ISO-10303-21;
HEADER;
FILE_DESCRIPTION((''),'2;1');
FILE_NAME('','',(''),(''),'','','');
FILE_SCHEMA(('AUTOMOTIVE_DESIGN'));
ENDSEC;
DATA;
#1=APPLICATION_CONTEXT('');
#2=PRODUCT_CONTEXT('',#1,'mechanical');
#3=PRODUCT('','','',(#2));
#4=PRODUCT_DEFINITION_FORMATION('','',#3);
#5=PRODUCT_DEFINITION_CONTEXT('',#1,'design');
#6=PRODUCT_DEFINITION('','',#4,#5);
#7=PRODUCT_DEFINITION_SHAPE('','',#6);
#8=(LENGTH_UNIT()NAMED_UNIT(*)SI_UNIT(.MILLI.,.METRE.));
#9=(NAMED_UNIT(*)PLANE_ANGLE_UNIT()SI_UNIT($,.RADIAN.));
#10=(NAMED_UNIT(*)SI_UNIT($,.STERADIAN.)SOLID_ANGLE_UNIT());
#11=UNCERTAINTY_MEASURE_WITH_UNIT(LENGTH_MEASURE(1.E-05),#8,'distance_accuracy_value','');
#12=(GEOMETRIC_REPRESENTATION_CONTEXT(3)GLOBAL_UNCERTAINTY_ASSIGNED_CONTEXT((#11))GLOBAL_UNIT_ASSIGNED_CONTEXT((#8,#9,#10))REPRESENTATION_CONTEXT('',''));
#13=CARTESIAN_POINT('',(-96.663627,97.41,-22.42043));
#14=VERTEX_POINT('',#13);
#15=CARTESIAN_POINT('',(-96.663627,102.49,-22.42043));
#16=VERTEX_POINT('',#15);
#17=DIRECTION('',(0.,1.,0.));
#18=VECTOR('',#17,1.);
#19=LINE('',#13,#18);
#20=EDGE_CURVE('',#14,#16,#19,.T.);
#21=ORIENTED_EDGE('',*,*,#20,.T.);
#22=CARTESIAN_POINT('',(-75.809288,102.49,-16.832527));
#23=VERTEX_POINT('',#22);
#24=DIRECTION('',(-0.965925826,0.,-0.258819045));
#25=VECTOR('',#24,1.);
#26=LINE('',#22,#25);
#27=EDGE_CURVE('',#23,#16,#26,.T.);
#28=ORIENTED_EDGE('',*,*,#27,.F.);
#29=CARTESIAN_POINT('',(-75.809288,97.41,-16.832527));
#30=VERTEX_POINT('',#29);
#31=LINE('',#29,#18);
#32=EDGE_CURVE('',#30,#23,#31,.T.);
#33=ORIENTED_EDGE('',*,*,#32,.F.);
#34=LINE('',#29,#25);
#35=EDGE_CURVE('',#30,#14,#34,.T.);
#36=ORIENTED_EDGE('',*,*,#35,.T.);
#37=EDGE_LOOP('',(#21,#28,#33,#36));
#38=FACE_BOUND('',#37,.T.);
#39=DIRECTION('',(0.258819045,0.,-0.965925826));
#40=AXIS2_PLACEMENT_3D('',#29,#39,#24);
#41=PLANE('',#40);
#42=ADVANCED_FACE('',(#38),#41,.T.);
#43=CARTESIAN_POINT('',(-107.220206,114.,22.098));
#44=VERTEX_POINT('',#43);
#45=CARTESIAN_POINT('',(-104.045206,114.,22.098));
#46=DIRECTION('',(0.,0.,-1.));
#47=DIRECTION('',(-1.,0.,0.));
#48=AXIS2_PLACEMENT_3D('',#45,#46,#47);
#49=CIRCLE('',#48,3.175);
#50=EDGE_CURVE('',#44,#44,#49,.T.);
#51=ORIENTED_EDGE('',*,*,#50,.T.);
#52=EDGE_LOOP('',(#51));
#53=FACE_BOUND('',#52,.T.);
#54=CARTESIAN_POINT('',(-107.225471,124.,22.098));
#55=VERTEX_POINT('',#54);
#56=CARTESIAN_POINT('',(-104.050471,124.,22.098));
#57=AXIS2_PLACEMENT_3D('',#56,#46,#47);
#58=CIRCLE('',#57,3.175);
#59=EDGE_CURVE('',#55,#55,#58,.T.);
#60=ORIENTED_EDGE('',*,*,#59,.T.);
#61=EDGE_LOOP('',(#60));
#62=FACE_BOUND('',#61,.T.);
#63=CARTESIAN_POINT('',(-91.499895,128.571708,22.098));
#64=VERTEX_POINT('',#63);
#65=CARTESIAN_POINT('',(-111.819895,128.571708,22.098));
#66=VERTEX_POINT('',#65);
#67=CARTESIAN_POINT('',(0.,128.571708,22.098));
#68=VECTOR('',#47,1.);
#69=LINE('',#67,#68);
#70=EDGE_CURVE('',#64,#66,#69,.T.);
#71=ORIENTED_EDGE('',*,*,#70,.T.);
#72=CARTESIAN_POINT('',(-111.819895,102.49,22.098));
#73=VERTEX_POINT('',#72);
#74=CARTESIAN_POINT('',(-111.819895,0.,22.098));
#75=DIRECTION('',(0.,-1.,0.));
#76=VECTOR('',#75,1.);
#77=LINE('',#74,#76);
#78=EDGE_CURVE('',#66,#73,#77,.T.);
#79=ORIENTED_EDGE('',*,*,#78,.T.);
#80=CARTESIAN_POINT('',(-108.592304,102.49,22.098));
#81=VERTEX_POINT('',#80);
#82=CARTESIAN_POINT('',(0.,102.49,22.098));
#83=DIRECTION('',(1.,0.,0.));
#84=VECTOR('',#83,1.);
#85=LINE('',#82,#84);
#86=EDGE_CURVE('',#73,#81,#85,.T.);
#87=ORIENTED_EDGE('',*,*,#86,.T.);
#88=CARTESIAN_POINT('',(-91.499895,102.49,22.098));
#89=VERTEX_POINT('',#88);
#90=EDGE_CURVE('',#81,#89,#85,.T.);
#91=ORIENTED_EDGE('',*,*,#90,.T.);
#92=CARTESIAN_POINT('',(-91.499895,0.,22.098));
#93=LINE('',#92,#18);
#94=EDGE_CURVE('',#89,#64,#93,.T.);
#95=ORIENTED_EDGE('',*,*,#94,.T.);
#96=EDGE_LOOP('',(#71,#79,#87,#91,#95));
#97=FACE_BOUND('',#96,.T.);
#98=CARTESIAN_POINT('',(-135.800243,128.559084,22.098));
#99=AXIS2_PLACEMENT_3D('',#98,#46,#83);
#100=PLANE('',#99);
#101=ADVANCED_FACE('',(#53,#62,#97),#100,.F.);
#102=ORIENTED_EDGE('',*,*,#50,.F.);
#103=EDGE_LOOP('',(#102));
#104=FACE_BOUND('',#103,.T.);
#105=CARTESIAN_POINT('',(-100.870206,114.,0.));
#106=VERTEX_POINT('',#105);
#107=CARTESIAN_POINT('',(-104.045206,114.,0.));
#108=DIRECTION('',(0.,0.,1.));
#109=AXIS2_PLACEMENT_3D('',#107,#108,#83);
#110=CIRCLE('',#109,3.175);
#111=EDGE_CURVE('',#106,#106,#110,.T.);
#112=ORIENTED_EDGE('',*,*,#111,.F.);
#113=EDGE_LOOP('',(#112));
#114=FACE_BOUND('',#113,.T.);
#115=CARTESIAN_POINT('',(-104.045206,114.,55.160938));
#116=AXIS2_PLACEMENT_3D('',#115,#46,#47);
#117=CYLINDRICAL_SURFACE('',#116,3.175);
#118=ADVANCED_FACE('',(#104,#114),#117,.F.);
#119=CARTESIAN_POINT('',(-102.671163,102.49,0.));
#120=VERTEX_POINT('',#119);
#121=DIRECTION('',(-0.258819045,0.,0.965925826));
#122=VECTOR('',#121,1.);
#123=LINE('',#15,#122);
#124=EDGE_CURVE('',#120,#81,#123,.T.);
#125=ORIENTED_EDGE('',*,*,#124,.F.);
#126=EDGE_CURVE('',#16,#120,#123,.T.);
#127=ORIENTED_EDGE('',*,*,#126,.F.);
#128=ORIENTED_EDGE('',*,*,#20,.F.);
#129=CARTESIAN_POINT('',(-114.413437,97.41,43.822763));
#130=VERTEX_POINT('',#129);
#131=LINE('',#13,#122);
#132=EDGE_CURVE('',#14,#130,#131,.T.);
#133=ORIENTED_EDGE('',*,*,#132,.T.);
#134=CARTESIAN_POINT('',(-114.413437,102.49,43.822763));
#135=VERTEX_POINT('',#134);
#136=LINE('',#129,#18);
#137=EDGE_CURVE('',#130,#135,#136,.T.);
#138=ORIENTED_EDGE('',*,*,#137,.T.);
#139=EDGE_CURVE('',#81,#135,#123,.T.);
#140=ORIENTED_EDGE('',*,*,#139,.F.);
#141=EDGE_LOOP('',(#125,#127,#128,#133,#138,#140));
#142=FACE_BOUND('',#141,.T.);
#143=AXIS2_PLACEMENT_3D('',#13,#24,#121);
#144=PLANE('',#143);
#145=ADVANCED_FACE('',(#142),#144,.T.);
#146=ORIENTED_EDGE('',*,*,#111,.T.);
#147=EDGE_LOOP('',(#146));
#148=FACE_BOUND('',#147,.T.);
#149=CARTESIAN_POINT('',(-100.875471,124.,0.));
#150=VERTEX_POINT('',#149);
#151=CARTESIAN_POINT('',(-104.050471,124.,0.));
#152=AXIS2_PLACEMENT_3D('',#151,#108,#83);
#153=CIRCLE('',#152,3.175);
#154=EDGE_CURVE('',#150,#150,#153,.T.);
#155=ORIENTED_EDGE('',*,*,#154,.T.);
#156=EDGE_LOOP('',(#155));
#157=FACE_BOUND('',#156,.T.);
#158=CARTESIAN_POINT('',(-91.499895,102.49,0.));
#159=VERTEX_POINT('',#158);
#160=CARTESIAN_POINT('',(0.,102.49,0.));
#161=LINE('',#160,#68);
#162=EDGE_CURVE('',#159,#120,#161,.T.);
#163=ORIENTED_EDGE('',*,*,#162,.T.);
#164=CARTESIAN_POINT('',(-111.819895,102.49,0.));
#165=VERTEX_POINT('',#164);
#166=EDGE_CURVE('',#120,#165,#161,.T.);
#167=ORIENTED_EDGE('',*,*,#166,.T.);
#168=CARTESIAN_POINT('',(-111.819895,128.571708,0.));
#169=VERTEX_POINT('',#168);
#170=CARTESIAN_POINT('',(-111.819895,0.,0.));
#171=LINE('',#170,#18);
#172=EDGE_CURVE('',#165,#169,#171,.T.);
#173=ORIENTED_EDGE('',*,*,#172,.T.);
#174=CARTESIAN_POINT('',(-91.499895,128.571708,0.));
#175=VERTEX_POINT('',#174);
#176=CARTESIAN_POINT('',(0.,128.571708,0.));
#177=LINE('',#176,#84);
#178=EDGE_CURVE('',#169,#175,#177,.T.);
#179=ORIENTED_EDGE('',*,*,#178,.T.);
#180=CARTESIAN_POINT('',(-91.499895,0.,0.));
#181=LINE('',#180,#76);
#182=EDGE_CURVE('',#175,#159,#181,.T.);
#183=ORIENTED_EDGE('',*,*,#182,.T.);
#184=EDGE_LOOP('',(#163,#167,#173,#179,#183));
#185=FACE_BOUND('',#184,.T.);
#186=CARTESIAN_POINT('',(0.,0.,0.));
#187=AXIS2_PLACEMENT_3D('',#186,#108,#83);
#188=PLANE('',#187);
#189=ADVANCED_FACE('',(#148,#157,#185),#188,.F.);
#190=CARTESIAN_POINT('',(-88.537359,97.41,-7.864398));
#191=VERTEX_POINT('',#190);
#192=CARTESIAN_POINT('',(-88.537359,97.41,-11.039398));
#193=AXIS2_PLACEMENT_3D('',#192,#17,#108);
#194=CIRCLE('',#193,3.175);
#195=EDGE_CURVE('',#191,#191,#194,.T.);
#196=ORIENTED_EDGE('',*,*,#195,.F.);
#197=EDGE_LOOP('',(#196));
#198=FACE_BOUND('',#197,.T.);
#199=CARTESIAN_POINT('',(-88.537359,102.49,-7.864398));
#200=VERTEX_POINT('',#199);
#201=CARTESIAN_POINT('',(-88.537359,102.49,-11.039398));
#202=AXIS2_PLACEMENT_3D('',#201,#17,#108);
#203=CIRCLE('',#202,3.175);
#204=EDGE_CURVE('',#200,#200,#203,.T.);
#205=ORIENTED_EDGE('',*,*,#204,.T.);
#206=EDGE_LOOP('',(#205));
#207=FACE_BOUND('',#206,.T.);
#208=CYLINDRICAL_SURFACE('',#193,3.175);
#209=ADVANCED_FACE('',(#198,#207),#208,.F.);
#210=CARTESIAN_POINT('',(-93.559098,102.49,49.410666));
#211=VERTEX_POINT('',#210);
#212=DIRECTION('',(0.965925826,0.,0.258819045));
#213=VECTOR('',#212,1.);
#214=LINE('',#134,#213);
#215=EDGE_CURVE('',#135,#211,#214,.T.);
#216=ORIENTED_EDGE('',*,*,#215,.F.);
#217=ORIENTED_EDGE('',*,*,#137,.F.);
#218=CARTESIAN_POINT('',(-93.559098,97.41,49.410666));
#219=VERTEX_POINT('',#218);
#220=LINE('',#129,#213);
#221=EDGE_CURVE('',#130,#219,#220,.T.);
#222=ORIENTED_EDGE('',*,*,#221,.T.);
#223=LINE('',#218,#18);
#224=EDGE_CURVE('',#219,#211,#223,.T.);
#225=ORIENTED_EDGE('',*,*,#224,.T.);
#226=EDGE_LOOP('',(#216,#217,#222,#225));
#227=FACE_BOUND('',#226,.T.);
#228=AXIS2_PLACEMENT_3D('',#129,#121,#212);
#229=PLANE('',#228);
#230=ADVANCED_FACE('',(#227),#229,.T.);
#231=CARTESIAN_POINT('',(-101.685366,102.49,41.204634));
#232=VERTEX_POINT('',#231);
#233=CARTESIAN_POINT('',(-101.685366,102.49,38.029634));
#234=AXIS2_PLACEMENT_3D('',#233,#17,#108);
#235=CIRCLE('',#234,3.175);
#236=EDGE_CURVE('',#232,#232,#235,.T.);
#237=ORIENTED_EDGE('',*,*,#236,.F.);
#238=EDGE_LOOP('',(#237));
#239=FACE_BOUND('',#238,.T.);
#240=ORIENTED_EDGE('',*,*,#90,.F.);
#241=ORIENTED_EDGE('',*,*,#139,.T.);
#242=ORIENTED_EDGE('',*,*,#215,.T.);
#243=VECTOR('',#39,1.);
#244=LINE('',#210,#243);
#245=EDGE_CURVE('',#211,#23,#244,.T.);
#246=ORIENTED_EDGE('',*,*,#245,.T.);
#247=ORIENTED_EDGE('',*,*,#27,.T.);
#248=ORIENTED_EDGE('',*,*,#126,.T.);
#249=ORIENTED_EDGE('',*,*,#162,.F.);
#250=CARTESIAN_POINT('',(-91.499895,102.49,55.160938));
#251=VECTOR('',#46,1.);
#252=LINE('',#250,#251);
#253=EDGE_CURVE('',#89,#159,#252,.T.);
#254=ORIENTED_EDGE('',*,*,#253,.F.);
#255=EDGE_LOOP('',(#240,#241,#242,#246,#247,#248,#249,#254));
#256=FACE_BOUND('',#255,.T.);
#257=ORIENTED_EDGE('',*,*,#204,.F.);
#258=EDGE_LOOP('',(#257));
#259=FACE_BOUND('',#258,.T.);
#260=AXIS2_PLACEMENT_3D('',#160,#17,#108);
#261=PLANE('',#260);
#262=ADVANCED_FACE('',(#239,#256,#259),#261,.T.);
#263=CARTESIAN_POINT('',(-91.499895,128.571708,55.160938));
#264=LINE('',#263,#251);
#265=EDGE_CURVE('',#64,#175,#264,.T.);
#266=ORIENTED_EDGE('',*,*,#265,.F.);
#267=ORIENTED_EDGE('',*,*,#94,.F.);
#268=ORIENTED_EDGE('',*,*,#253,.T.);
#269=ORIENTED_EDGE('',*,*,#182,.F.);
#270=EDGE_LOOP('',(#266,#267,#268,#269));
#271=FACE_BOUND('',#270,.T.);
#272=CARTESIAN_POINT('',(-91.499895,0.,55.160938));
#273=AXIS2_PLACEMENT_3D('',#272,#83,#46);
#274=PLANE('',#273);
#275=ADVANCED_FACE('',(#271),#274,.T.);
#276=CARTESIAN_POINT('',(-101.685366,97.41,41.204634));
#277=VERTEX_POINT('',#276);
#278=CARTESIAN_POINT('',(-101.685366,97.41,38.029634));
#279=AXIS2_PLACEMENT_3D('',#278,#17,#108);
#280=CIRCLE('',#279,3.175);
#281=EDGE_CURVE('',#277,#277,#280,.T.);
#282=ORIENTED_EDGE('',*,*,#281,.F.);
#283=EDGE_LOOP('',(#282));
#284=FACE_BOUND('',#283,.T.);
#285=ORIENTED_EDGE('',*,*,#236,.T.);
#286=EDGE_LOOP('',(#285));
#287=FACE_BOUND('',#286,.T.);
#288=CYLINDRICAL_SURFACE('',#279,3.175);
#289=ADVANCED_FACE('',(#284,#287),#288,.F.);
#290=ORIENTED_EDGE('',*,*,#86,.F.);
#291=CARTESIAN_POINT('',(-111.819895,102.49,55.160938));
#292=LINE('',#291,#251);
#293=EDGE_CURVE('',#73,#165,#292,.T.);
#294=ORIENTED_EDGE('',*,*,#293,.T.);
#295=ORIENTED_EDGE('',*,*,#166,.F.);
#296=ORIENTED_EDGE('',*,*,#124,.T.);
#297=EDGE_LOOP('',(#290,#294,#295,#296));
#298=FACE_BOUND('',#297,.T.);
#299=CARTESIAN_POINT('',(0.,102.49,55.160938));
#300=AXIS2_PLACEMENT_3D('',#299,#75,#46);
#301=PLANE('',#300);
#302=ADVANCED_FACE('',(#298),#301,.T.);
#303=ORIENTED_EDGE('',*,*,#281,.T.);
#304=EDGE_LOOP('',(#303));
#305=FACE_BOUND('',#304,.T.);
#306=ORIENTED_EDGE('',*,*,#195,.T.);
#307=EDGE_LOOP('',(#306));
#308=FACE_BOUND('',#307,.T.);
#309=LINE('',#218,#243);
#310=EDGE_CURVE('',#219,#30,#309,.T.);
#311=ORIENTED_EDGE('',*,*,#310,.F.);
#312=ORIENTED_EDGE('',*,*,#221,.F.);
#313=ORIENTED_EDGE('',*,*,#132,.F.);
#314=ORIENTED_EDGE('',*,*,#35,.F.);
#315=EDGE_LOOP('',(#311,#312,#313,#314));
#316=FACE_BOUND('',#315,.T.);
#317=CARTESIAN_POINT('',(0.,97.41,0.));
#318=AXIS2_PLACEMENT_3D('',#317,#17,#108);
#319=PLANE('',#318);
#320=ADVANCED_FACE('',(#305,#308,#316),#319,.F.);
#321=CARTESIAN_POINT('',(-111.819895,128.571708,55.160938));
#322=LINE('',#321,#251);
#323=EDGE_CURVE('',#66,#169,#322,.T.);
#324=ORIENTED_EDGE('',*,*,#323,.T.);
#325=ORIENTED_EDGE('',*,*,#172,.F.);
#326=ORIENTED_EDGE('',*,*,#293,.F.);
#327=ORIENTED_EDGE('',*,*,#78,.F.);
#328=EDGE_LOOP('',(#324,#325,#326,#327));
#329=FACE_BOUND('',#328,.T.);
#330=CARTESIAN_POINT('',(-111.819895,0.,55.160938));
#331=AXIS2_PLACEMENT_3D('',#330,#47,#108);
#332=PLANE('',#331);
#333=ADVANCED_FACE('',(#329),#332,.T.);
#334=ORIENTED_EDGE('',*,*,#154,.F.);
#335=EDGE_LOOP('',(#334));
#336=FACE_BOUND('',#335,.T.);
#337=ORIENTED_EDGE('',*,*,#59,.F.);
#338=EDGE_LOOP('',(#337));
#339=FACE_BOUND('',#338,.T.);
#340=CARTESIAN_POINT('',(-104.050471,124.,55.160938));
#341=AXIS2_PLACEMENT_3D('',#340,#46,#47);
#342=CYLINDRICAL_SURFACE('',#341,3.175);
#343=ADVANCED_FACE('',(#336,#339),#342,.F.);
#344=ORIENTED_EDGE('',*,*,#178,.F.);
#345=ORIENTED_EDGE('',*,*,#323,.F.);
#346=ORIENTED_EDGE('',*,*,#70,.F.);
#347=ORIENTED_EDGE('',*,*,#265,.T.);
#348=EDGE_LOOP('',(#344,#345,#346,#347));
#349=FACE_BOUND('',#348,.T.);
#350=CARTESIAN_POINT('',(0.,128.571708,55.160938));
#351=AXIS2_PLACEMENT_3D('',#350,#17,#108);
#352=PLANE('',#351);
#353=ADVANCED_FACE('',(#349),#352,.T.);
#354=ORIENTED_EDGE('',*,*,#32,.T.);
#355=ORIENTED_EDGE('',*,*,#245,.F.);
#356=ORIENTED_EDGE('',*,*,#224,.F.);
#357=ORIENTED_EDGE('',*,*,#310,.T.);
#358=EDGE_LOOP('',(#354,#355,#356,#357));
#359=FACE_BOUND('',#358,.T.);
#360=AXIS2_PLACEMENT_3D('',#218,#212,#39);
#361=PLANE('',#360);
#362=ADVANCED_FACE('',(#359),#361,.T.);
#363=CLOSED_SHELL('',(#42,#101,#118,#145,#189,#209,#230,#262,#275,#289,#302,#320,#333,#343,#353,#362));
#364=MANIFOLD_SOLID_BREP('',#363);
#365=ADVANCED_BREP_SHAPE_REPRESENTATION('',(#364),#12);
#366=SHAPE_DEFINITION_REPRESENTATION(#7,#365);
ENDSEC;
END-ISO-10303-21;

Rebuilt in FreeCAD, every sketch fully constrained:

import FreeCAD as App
import Part
import Sketcher
Q = App.Units.Quantity


def add_polygon(sketch, points):
    """Adds a closed chain of lines whose ends are joined by coincident constraints."""
    first, n = sketch.GeometryCount, len(points)
    for a, b in zip(points, points[1:] + points[:1]):
        sketch.addGeometry(Part.LineSegment(App.Vector(*a, 0), App.Vector(*b, 0)), False)
    for i in range(n):
        sketch.addConstraint(Sketcher.Constraint("Coincident", first + i, 2, first + (i + 1) % n, 1))

doc = App.newDocument("Part")
params = doc.addObject("Spreadsheet::Sheet", "Params")
for row, (alias, value) in enumerate([
    ("sketch1_diameter", "0.25 in"),
    ("sketch1_width", "0.8 in"),
    ("pad1_length", "0.87 in"),
    ("sketch2_diameter", "0.25 in"),
    ("sketch2_length", "2.7 in"),
    ("sketch2_length2", "0.85 in"),
    ("pad2_length", "0.2 in"),
], start=1):
    params.set(f"A{row}", alias)
    params.set(f"B{row}", "=" + value)
    params.setAlias(f"B{row}", alias)

body = doc.addObject("PartDesign::Body", "Body")

# Sketch on XY plane
sketch1 = body.newObject("Sketcher::SketchObject", "Sketch")
sketch1.AttachmentSupport = (doc.getObject("XY_Plane"), [""])
sketch1.MapMode = "FlatFace"
add_polygon(sketch1, [(-111.819895, 128.571708), (-111.819895, 102.49), (-91.499895, 102.49), (-91.499895, 128.571708)])  # lines 0-3
sketch1.addGeometry(Part.Circle(App.Vector(-104.045206, 114, 0), App.Vector(0, 0, 1), 3.175), False)  # 4
sketch1.addGeometry(Part.Circle(App.Vector(-104.050471, 124, 0), App.Vector(0, 0, 1), 3.175), False)  # 5
sketch1.addConstraint([
    Sketcher.Constraint("Vertical", 0),
    Sketcher.Constraint("Horizontal", 1),
    Sketcher.Constraint("Vertical", 2),
    Sketcher.Constraint("Horizontal", 3),
    Sketcher.Constraint("Equal", 4, 5),
    Sketcher.Constraint("Diameter", 4, Q("0.25 in")),
    Sketcher.Constraint("DistanceX", 1, 1, 1, 2, Q("0.8 in")),
    Sketcher.Constraint("DistanceY", 0, 2, 0, 1, 26.081708),
    Sketcher.Constraint("DistanceY", -1, 1, 4, 3, 114.0),
    Sketcher.Constraint("DistanceY", -1, 1, 5, 3, 124.0),
    Sketcher.Constraint("DistanceY", -1, 1, 0, 2, 102.49),
    Sketcher.Constraint("DistanceX", 5, 3, -1, 1, 104.050471),
    Sketcher.Constraint("DistanceX", 0, 2, 4, 3, 7.774688),
    Sketcher.Constraint("DistanceX", 4, 3, -1, 1, 104.045206),
])
sketch1.setExpression("Constraints[9]", "Params.sketch1_diameter")
sketch1.setExpression("Constraints[10]", "Params.sketch1_width")
pad1 = body.newObject("PartDesign::Pad", "Pad")
pad1.Profile = sketch1
pad1.setExpression("Length", "Params.pad1_length")

# Sketch on XZ plane
sketch2 = body.newObject("Sketcher::SketchObject", "Sketch001")
sketch2.AttachmentSupport = (doc.getObject("XZ_Plane"), [""])
sketch2.MapMode = "FlatFace"
sketch2.AttachmentOffset = App.Placement(App.Vector(0, 0, -102.49), App.Rotation())
add_polygon(sketch2, [(-96.663627, -22.42043), (-114.413437, 43.822763), (-93.559098, 49.410666), (-75.809288, -16.832527)])  # lines 0-3
sketch2.addGeometry(Part.Circle(App.Vector(-101.685366, 38.029634, 0), App.Vector(0, 0, 1), 3.175), False)  # 4
sketch2.addGeometry(Part.Circle(App.Vector(-88.537359, -11.039398, 0), App.Vector(0, 0, 1), 3.175), False)  # 5
sketch2.addConstraint([
    Sketcher.Constraint("Equal", 4, 5),
    Sketcher.Constraint("Perpendicular", 0, 1),
    Sketcher.Constraint("Perpendicular", 1, 2),
    Sketcher.Constraint("Perpendicular", 2, 3),
    Sketcher.Constraint("Diameter", 4, Q("0.25 in")),
    Sketcher.Constraint("Angle", 0, Q("105 deg")),
    Sketcher.Constraint("Distance", 0, Q("2.7 in")),
    Sketcher.Constraint("Distance", 1, Q("0.85 in")),
    Sketcher.Constraint("DistanceX", 1, 2, -1, 1, 93.559098),
    Sketcher.Constraint("DistanceX", 5, 3, -1, 1, 88.537359),
    Sketcher.Constraint("DistanceY", 3, 2, -1, 1, 22.42043),
    Sketcher.Constraint("DistanceY", 5, 3, 4, 3, 49.069032),
    Sketcher.Constraint("DistanceX", 0, 2, 4, 3, 12.728071),
    Sketcher.Constraint("DistanceY", 4, 3, 0, 2, 5.793129),
])
sketch2.setExpression("Constraints[8]", "Params.sketch2_diameter")
sketch2.setExpression("Constraints[10]", "Params.sketch2_length")
sketch2.setExpression("Constraints[11]", "Params.sketch2_length2")
pad2 = body.newObject("PartDesign::Pad", "Pad001")
pad2.Profile = sketch2
pad2.setExpression("Length", "Params.pad2_length")

doc.recompute()
